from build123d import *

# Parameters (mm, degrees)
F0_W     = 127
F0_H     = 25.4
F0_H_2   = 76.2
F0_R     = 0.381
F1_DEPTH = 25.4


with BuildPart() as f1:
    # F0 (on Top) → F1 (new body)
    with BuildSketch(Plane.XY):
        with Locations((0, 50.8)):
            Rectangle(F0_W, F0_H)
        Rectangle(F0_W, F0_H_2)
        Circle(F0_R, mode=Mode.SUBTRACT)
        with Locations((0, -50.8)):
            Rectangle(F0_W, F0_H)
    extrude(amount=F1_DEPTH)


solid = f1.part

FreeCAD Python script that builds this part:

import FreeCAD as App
import Part
import Sketcher
from FreeCAD import Vector
Q = App.Units.Quantity


def add_polygon(sketch, points):
    """Adds a closed chain of lines whose ends are joined by coincident constraints."""
    first, n = sketch.GeometryCount, len(points)
    for a, b in zip(points, points[1:] + points[:1]):
        sketch.addGeometry(Part.LineSegment(App.Vector(*a, 0), App.Vector(*b, 0)), False)
    for i in range(n):
        sketch.addConstraint(Sketcher.Constraint("Coincident", first + i, 2, first + (i + 1) % n, 1))

doc = App.newDocument("Part")
body = doc.addObject("PartDesign::Body", "Body")

# Sketch on XY plane
sketch1 = body.newObject("Sketcher::SketchObject", "Sketch")
sketch1.AttachmentSupport = (doc.getObject("XY_Plane"), [""])
sketch1.MapMode = "FlatFace"
add_polygon(sketch1, [(-63.5, 63.5), (-63.5, -63.5), (63.5, -63.5), (63.5, 63.5)])  # lines 0-3
sketch1.addGeometry(Part.Circle(Vector(0, 0, 0), Vector(0, 0, 1), 0.381), False)  # 4
sketch1.addConstraint([
    Sketcher.Constraint("Vertical", 0),
    Sketcher.Constraint("Horizontal", 1),
    Sketcher.Constraint("Vertical", 2),
    Sketcher.Constraint("Horizontal", 3),
    Sketcher.Constraint("Coincident", 4, 3, -1, 1),
    Sketcher.Constraint("Symmetric", 0, 2, 2, 2, -1, 1),
    Sketcher.Constraint("Equal", 3, 0),
    Sketcher.Constraint("Diameter", 4, Q("0.03 in")),
    Sketcher.Constraint("DistanceX", 1, 1, 1, 2, Q("5 in")),
])
pad1 = body.newObject("PartDesign::Pad", "Pad")
pad1.Profile = sketch1
pad1.Length = Q("1 in")

doc.recompute()
